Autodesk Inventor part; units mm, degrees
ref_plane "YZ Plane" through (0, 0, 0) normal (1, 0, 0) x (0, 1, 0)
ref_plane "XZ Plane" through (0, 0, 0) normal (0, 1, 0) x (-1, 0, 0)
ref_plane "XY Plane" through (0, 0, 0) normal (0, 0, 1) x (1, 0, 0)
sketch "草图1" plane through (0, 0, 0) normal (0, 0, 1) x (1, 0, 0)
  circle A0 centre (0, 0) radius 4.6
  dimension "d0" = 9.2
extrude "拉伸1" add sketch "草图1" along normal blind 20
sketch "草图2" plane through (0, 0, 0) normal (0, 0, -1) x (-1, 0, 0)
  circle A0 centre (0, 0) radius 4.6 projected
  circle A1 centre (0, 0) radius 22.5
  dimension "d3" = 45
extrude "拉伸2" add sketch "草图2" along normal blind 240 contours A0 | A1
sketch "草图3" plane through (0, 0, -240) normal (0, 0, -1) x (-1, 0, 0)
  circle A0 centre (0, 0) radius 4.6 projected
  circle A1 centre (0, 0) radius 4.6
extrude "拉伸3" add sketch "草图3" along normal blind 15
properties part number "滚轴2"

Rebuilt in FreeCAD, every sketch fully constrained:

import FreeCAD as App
import Part
import Sketcher

V = App.Vector

doc = App.newDocument("Part")
body = doc.addObject("PartDesign::Body", "Body")

# Sketch on XY plane
sketch1 = body.newObject("Sketcher::SketchObject", "Sketch")
sketch1.AttachmentSupport = (doc.getObject("XY_Plane"), [""])
sketch1.MapMode = "FlatFace"
sketch1.addGeometry(Part.Circle(V(0, 0, 0), V(0, 0, 1), 4.6), False)
sketch1.addConstraint([
    Sketcher.Constraint("Coincident", 0, 3, -1, 1),
    Sketcher.Constraint("Diameter", 0, 9.2),
])
pad1 = body.newObject("PartDesign::Pad", "Pad")
pad1.Profile = sketch1
pad1.Length = 20

# Sketch on XY plane
sketch2 = body.newObject("Sketcher::SketchObject", "Sketch001")
sketch2.AttachmentSupport = (doc.getObject("XY_Plane"), [""])
sketch2.MapMode = "FlatFace"
sketch2.addGeometry(Part.Circle(V(0, 0, 0), V(0, 0, 1), 22), False)
sketch2.addConstraint([
    Sketcher.Constraint("Coincident", 0, 3, -1, 1),
    Sketcher.Constraint("Diameter", 0, 45.0),
])
pad2 = body.newObject("PartDesign::Pad", "Pad001")
pad2.Profile = sketch2
pad2.Length = 240
pad2.Reversed = True

# Sketch on XY plane
sketch3 = body.newObject("Sketcher::SketchObject", "Sketch002")
sketch3.AttachmentSupport = (doc.getObject("XY_Plane"), [""])
sketch3.MapMode = "FlatFace"
sketch3.AttachmentOffset = App.Placement(V(0, 0, -240), App.Rotation())
sketch3.addGeometry(Part.Circle(V(0, 0, 0), V(0, 0, 1), 4.6), False)
sketch3.addConstraint([
    Sketcher.Constraint("Coincident", 0, 3, -1, 1),
    Sketcher.Constraint("Diameter", 0, 9.2),
])
pad3 = body.newObject("PartDesign::Pad", "Pad002")
pad3.Profile = sketch3
pad3.Length = 15
pad3.Reversed = True

doc.recompute()
